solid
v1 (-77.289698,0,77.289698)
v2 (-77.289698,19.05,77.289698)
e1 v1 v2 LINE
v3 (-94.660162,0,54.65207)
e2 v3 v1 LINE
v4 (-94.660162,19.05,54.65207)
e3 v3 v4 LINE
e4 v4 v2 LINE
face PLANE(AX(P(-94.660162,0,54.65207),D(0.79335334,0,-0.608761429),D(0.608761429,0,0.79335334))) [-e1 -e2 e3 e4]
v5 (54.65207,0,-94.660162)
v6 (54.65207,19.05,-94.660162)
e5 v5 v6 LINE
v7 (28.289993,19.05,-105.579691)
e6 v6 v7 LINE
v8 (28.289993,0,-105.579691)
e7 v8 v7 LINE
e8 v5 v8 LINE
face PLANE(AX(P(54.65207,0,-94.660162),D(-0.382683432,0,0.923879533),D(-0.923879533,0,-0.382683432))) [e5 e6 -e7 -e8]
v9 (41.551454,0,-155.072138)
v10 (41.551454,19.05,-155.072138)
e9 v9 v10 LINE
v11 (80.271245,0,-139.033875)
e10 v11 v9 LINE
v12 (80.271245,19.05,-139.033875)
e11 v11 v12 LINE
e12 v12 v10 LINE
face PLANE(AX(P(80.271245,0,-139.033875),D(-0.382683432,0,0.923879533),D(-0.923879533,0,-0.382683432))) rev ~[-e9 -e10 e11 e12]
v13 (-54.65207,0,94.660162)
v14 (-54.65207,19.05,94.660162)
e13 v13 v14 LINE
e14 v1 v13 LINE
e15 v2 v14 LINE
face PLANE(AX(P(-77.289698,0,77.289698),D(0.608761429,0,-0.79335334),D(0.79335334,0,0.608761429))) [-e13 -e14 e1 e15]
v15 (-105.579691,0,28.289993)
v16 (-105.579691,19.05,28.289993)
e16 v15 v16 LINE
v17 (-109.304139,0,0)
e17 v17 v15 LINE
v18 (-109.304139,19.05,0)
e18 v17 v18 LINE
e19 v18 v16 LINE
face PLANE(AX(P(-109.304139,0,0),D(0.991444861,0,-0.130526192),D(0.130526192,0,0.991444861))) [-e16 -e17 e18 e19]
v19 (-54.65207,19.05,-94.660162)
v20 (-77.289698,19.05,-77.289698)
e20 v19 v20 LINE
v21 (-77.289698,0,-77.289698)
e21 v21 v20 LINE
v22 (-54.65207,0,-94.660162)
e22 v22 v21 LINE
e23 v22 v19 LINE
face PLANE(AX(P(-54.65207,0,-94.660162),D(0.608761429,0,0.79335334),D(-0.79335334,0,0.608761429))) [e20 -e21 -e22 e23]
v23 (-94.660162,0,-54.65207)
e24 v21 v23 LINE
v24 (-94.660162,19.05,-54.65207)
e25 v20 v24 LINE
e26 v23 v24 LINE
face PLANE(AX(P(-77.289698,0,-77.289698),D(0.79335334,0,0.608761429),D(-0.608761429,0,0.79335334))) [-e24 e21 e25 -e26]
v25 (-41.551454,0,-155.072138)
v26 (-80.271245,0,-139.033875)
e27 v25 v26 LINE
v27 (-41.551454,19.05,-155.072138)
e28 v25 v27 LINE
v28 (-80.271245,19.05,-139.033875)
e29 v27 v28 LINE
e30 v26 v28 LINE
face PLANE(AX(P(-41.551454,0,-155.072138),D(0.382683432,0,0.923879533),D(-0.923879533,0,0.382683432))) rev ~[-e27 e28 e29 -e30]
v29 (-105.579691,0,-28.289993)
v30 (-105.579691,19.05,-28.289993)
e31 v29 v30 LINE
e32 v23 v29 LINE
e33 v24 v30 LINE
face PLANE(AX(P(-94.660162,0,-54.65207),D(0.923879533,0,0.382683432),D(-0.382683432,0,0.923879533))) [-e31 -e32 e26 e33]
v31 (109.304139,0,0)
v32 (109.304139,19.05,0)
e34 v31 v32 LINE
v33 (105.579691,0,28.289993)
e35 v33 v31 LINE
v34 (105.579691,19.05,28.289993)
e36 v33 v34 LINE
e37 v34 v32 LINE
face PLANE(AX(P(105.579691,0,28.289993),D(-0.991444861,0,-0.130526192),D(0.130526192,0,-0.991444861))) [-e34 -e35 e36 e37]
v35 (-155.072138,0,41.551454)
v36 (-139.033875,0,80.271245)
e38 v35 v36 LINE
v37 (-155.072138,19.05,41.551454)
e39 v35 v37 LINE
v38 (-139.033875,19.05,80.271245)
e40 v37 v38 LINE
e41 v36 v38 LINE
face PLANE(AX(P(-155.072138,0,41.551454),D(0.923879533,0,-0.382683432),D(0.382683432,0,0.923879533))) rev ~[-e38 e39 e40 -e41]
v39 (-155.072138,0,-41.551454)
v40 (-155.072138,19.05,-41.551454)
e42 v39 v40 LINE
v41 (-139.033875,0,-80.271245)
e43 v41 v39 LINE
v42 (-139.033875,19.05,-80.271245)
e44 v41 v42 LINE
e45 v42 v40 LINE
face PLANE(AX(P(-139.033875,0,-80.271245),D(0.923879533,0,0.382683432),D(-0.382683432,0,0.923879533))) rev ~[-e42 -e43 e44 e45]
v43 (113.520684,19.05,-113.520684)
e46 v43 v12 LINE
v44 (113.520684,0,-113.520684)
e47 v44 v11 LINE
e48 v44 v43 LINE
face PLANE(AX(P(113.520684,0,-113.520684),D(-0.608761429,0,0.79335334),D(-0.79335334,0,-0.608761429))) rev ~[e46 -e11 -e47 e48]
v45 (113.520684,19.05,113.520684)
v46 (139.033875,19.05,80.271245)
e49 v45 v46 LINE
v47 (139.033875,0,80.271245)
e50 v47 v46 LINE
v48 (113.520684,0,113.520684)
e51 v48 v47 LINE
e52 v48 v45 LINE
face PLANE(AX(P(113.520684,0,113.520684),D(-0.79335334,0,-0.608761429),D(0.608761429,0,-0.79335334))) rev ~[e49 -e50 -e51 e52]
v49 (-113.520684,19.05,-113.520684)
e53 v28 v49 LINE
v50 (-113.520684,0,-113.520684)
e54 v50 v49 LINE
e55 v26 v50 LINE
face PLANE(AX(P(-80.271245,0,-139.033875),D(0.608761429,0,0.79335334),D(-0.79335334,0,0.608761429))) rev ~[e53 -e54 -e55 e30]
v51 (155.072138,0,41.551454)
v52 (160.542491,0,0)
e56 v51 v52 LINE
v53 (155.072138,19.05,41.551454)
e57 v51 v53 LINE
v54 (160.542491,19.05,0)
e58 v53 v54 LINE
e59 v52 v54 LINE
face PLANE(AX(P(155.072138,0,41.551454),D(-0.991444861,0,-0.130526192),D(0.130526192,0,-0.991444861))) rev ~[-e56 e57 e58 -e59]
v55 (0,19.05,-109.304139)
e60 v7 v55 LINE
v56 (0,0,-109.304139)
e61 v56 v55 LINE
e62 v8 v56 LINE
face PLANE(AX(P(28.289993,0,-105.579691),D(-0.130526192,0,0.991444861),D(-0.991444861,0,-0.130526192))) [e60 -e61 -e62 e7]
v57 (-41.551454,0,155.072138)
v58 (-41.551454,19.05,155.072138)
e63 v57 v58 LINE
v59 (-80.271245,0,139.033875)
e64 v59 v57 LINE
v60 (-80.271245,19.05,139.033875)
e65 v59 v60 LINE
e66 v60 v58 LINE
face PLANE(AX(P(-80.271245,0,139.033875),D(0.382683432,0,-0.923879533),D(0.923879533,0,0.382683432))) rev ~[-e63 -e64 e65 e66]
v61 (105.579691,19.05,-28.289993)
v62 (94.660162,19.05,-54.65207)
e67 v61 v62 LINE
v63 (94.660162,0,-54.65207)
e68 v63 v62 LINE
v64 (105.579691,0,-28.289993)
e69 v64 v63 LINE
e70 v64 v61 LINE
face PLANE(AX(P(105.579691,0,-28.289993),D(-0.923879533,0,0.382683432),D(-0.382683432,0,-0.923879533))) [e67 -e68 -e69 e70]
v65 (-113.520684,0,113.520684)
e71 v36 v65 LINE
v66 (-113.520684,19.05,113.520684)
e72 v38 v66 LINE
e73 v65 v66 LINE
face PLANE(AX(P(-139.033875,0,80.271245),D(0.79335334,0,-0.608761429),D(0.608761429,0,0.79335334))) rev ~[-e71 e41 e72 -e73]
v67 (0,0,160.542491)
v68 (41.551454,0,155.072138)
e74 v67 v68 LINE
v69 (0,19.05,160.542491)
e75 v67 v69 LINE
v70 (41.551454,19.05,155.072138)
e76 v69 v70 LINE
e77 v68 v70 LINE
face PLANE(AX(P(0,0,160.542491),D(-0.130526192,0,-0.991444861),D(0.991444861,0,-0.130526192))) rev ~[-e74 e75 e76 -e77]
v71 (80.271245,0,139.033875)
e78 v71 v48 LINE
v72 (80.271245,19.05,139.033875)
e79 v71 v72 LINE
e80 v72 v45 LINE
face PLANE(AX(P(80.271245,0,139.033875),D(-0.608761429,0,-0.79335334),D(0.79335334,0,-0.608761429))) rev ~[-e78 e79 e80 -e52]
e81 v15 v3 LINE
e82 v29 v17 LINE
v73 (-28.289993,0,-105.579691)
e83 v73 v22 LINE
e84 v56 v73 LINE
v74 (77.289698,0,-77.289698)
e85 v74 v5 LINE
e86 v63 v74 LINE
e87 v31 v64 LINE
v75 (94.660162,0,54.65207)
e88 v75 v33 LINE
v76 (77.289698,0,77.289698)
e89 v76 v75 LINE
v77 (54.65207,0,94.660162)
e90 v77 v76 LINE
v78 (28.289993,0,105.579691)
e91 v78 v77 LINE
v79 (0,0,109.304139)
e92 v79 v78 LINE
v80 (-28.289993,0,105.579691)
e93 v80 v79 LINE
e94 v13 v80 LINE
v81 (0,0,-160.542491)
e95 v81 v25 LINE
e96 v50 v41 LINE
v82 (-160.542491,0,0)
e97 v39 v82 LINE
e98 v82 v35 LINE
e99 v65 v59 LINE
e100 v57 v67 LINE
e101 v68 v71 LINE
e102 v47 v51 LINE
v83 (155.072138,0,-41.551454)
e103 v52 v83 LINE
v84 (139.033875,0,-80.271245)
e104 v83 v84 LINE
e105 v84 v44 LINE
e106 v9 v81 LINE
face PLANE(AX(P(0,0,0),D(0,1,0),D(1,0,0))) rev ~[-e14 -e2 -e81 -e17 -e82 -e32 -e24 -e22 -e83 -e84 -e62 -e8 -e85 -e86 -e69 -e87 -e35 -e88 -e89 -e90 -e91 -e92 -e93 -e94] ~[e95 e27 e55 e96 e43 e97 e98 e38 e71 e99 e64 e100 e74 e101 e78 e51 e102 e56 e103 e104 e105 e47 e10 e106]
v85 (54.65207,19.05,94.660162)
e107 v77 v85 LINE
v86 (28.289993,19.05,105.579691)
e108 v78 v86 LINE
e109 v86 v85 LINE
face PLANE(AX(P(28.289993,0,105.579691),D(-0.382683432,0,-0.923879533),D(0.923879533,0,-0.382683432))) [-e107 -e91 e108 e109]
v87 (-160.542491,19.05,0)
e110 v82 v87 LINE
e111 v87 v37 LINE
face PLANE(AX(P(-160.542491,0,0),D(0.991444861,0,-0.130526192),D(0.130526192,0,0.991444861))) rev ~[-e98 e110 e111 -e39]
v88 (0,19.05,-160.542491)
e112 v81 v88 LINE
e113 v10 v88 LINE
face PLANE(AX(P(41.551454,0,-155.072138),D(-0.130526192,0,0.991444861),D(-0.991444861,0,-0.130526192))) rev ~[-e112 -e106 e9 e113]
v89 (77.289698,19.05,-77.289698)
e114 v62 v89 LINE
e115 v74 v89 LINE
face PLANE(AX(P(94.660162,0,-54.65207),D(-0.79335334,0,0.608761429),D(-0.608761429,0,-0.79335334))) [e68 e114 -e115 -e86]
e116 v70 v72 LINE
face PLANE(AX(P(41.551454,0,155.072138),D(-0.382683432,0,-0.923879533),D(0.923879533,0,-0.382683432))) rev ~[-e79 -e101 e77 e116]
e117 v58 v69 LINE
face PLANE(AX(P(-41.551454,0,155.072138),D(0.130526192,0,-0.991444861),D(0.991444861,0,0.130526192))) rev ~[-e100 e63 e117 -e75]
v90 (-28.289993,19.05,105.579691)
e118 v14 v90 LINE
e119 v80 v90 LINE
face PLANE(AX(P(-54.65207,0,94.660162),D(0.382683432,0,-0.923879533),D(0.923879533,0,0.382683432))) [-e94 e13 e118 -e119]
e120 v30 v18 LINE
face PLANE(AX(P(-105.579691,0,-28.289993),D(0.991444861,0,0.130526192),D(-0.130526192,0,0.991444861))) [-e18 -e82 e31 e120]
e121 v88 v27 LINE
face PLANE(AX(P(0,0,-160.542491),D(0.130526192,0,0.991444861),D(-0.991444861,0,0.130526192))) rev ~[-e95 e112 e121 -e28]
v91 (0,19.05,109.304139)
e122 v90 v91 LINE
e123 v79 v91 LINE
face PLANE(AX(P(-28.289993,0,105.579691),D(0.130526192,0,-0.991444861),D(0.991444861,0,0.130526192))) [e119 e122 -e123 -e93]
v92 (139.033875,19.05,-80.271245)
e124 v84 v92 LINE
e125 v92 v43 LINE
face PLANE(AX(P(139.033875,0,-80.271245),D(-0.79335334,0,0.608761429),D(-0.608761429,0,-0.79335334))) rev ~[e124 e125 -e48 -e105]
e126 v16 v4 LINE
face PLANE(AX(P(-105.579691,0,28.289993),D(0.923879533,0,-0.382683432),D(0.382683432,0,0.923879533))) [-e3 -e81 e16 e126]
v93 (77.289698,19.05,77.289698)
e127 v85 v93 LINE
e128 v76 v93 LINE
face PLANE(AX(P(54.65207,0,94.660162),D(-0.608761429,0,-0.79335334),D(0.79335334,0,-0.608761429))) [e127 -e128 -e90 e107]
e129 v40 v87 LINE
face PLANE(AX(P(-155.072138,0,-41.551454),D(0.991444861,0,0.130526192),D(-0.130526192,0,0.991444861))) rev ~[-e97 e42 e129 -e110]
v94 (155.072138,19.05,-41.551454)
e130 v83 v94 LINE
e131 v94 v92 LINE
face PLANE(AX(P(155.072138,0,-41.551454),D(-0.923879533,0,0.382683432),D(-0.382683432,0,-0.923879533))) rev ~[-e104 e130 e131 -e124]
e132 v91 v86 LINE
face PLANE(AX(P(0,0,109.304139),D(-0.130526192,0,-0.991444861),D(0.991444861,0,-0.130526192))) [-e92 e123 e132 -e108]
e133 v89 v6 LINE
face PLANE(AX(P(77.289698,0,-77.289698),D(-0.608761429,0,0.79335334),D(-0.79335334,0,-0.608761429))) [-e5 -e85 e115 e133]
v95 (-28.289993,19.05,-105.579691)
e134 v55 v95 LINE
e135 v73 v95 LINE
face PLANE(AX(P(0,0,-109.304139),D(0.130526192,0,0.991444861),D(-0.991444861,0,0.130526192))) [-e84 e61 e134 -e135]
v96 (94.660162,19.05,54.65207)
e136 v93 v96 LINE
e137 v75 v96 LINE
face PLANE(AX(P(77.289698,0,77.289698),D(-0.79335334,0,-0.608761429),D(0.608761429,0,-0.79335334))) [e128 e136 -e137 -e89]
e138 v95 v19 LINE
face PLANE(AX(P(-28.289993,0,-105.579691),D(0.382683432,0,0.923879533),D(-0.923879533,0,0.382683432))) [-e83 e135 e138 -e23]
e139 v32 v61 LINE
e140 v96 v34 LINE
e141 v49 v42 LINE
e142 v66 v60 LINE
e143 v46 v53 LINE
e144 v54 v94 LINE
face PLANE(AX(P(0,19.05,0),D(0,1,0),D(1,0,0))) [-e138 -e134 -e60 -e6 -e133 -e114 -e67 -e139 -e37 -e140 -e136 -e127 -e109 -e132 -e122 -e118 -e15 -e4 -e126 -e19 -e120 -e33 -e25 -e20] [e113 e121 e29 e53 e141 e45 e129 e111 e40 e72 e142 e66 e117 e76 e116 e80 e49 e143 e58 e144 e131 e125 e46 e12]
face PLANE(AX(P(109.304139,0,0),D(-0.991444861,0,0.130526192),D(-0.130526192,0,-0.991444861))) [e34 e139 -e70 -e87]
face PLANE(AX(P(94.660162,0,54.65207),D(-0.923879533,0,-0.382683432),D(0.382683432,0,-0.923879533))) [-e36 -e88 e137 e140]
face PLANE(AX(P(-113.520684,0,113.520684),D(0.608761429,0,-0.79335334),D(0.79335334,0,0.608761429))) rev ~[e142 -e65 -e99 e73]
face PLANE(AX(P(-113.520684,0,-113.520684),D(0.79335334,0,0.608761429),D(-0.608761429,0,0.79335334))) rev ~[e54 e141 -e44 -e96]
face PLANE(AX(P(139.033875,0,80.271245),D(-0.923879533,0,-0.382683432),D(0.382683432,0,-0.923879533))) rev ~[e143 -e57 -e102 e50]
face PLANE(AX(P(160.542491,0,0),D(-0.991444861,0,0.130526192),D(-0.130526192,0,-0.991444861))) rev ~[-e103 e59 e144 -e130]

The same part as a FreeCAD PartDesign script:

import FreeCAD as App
import Part
import Sketcher

V = App.Vector
Q = App.Units.Quantity

doc = App.newDocument("Part")
params = doc.addObject("Spreadsheet::Sheet", "Params")
for row, (alias, value) in enumerate([
    ("sketch1_length", "1.65 in"),
    ("pad1_length", "0.75 in"),
], start=1):
    params.set(f"A{row}", alias)
    params.set(f"B{row}", "=" + value)
    params.setAlias(f"B{row}", alias)

body = doc.addObject("PartDesign::Body", "Body")

sketch1 = body.newObject("Sketcher::SketchObject", "Sketch")
sketch1.AttachmentSupport = (doc.getObject("XZ_Plane"), [""])
sketch1.MapMode = "FlatFace"
sketch1.addGeometry([
    Part.LineSegment(V(-160.542491, 0, 0), V(-155.072138, 41.551454, 0)),
    Part.LineSegment(V(-155.072138, 41.551454, 0), V(-139.033875, 80.271245, 0)),
    Part.LineSegment(V(-139.033875, 80.271245, 0), V(-113.520684, 113.520684, 0)),
    Part.LineSegment(V(-113.520684, 113.520684, 0), V(-80.271245, 139.033875, 0)),
    Part.LineSegment(V(-80.271245, 139.033875, 0), V(-41.551454, 155.072138, 0)),
    Part.LineSegment(V(-41.551454, 155.072138, 0), V(0, 160.542491, 0)),
    Part.LineSegment(V(0, 160.542491, 0), V(41.551454, 155.072138, 0)),
    Part.LineSegment(V(41.551454, 155.072138, 0), V(80.271245, 139.033875, 0)),
    Part.LineSegment(V(80.271245, 139.033875, 0), V(113.520684, 113.520684, 0)),
    Part.LineSegment(V(113.520684, 113.520684, 0), V(139.033875, 80.271245, 0)),
    Part.LineSegment(V(139.033875, 80.271245, 0), V(155.072138, 41.551454, 0)),
    Part.LineSegment(V(155.072138, 41.551454, 0), V(160.542491, 0, 0)),
    Part.LineSegment(V(160.542491, 0, 0), V(155.072138, -41.551454, 0)),
    Part.LineSegment(V(155.072138, -41.551454, 0), V(139.033875, -80.271245, 0)),
    Part.LineSegment(V(139.033875, -80.271245, 0), V(113.520684, -113.520684, 0)),
    Part.LineSegment(V(113.520684, -113.520684, 0), V(80.271245, -139.033875, 0)),
    Part.LineSegment(V(80.271245, -139.033875, 0), V(41.551454, -155.072138, 0)),
    Part.LineSegment(V(41.551454, -155.072138, 0), V(0, -160.542491, 0)),
    Part.LineSegment(V(0, -160.542491, 0), V(-41.551454, -155.072138, 0)),
    Part.LineSegment(V(-41.551454, -155.072138, 0), V(-80.271245, -139.033875, 0)),
    Part.LineSegment(V(-80.271245, -139.033875, 0), V(-113.520684, -113.520684, 0)),
    Part.LineSegment(V(-113.520684, -113.520684, 0), V(-139.033875, -80.271245, 0)),
    Part.LineSegment(V(-139.033875, -80.271245, 0), V(-155.072138, -41.551454, 0)),
    Part.LineSegment(V(-155.072138, -41.551454, 0), V(-160.542491, 0, 0)),
    Part.LineSegment(V(-105.579691, 28.289993, 0), V(-109.304139, 0, 0)),
    Part.LineSegment(V(-109.304139, 0, 0), V(-105.579691, -28.289993, 0)),
    Part.LineSegment(V(-105.579691, -28.289993, 0), V(-94.660162, -54.65207, 0)),
    Part.LineSegment(V(-94.660162, -54.65207, 0), V(-77.289698, -77.289698, 0)),
    Part.LineSegment(V(-77.289698, -77.289698, 0), V(-54.65207, -94.660162, 0)),
    Part.LineSegment(V(-54.65207, -94.660162, 0), V(-28.289993, -105.579691, 0)),
    Part.LineSegment(V(-28.289993, -105.579691, 0), V(0, -109.304139, 0)),
    Part.LineSegment(V(0, -109.304139, 0), V(28.289993, -105.579691, 0)),
    Part.LineSegment(V(28.289993, -105.579691, 0), V(54.65207, -94.660162, 0)),
    Part.LineSegment(V(54.65207, -94.660162, 0), V(77.289698, -77.289698, 0)),
    Part.LineSegment(V(77.289698, -77.289698, 0), V(94.660162, -54.65207, 0)),
    Part.LineSegment(V(94.660162, -54.65207, 0), V(105.579691, -28.289993, 0)),
    Part.LineSegment(V(105.579691, -28.289993, 0), V(109.304139, 0, 0)),
    Part.LineSegment(V(109.304139, 0, 0), V(105.579691, 28.289993, 0)),
    Part.LineSegment(V(105.579691, 28.289993, 0), V(94.660162, 54.65207, 0)),
    Part.LineSegment(V(94.660162, 54.65207, 0), V(77.289698, 77.289698, 0)),
    Part.LineSegment(V(77.289698, 77.289698, 0), V(54.65207, 94.660162, 0)),
    Part.LineSegment(V(54.65207, 94.660162, 0), V(28.289993, 105.579691, 0)),
    Part.LineSegment(V(28.289993, 105.579691, 0), V(0, 109.304139, 0)),
    Part.LineSegment(V(0, 109.304139, 0), V(-28.289993, 105.579691, 0)),
    Part.LineSegment(V(-28.289993, 105.579691, 0), V(-54.65207, 94.660162, 0)),
    Part.LineSegment(V(-54.65207, 94.660162, 0), V(-77.289698, 77.289698, 0)),
    Part.LineSegment(V(-77.289698, 77.289698, 0), V(-94.660162, 54.65207, 0)),
    Part.LineSegment(V(-94.660162, 54.65207, 0), V(-105.579691, 28.289993, 0)),
], False)
sketch1.addConstraint([
    Sketcher.Constraint("Coincident", 0, 2, 1, 1),
    Sketcher.Constraint("Coincident", 1, 2, 2, 1),
    Sketcher.Constraint("Coincident", 2, 2, 3, 1),
    Sketcher.Constraint("Coincident", 3, 2, 4, 1),
    Sketcher.Constraint("Coincident", 4, 2, 5, 1),
    Sketcher.Constraint("Coincident", 5, 2, 6, 1),
    Sketcher.Constraint("Coincident", 6, 2, 7, 1),
    Sketcher.Constraint("Coincident", 7, 2, 8, 1),
    Sketcher.Constraint("Coincident", 8, 2, 9, 1),
    Sketcher.Constraint("Coincident", 9, 2, 10, 1),
    Sketcher.Constraint("Coincident", 10, 2, 11, 1),
    Sketcher.Constraint("Coincident", 11, 2, 12, 1),
    Sketcher.Constraint("Coincident", 12, 2, 13, 1),
    Sketcher.Constraint("Coincident", 13, 2, 14, 1),
    Sketcher.Constraint("Coincident", 14, 2, 15, 1),
    Sketcher.Constraint("Coincident", 15, 2, 16, 1),
    Sketcher.Constraint("Coincident", 16, 2, 17, 1),
    Sketcher.Constraint("Coincident", 17, 2, 18, 1),
    Sketcher.Constraint("Coincident", 18, 2, 19, 1),
    Sketcher.Constraint("Coincident", 19, 2, 20, 1),
    Sketcher.Constraint("Coincident", 20, 2, 21, 1),
    Sketcher.Constraint("Coincident", 21, 2, 22, 1),
    Sketcher.Constraint("Coincident", 22, 2, 23, 1),
    Sketcher.Constraint("Coincident", 23, 2, 0, 1),
    Sketcher.Constraint("Coincident", 24, 2, 25, 1),
    Sketcher.Constraint("Coincident", 25, 2, 26, 1),
    Sketcher.Constraint("Coincident", 26, 2, 27, 1),
    Sketcher.Constraint("Coincident", 27, 2, 28, 1),
    Sketcher.Constraint("Coincident", 28, 2, 29, 1),
    Sketcher.Constraint("Coincident", 29, 2, 30, 1),
    Sketcher.Constraint("Coincident", 30, 2, 31, 1),
    Sketcher.Constraint("Coincident", 31, 2, 32, 1),
    Sketcher.Constraint("Coincident", 32, 2, 33, 1),
    Sketcher.Constraint("Coincident", 33, 2, 34, 1),
    Sketcher.Constraint("Coincident", 34, 2, 35, 1),
    Sketcher.Constraint("Coincident", 35, 2, 36, 1),
    Sketcher.Constraint("Coincident", 36, 2, 37, 1),
    Sketcher.Constraint("Coincident", 37, 2, 38, 1),
    Sketcher.Constraint("Coincident", 38, 2, 39, 1),
    Sketcher.Constraint("Coincident", 39, 2, 40, 1),
    Sketcher.Constraint("Coincident", 40, 2, 41, 1),
    Sketcher.Constraint("Coincident", 41, 2, 42, 1),
    Sketcher.Constraint("Coincident", 42, 2, 43, 1),
    Sketcher.Constraint("Coincident", 43, 2, 44, 1),
    Sketcher.Constraint("Coincident", 44, 2, 45, 1),
    Sketcher.Constraint("Coincident", 45, 2, 46, 1),
    Sketcher.Constraint("Coincident", 46, 2, 47, 1),
    Sketcher.Constraint("Coincident", 47, 2, 24, 1),
    Sketcher.Constraint("Symmetric", 0, 2, 12, 2, -1, 1),
    Sketcher.Constraint("Symmetric", 1, 2, 13, 2, -1, 1),
    Sketcher.Constraint("Symmetric", 2, 2, 14, 2, -1, 1),
    Sketcher.Constraint("Symmetric", 3, 2, 15, 2, -1, 1),
    Sketcher.Constraint("Symmetric", 4, 2, 16, 2, -1, 1),
    Sketcher.Constraint("Symmetric", 5, 2, 17, 2, -1, 1),
    Sketcher.Constraint("Symmetric", 6, 2, 18, 2, -1, 1),
    Sketcher.Constraint("Symmetric", 7, 2, 19, 2, -1, 1),
    Sketcher.Constraint("Symmetric", 8, 2, 20, 2, -1, 1),
    Sketcher.Constraint("Symmetric", 9, 2, 21, 2, -1, 1),
    Sketcher.Constraint("Symmetric", 10, 2, 22, 2, -1, 1),
    Sketcher.Constraint("Symmetric", 11, 2, 23, 2, -1, 1),
    Sketcher.Constraint("Symmetric", 24, 2, 36, 2, -1, 1),
    Sketcher.Constraint("Symmetric", 25, 2, 37, 2, -1, 1),
    Sketcher.Constraint("Symmetric", 26, 2, 38, 2, -1, 1),
    Sketcher.Constraint("Symmetric", 27, 2, 39, 2, -1, 1),
    Sketcher.Constraint("Symmetric", 28, 2, 40, 2, -1, 1),
    Sketcher.Constraint("Symmetric", 29, 2, 41, 2, -1, 1),
    Sketcher.Constraint("Symmetric", 30, 2, 42, 2, -1, 1),
    Sketcher.Constraint("Symmetric", 31, 2, 43, 2, -1, 1),
    Sketcher.Constraint("Symmetric", 32, 2, 44, 2, -1, 1),
    Sketcher.Constraint("Symmetric", 33, 2, 45, 2, -1, 1),
    Sketcher.Constraint("Symmetric", 34, 2, 46, 2, -1, 1),
    Sketcher.Constraint("Symmetric", 35, 2, 47, 2, -1, 1),
    Sketcher.Constraint("Symmetric", 4, 2, 6, 2, -2),
    Sketcher.Constraint("Symmetric", 3, 2, 7, 2, -2),
    Sketcher.Constraint("Symmetric", 2, 2, 8, 2, -2),
    Sketcher.Constraint("Symmetric", 1, 2, 9, 2, -2),
    Sketcher.Constraint("Symmetric", 0, 2, 10, 2, -2),
    Sketcher.Constraint("Symmetric", 29, 2, 31, 2, -2),
    Sketcher.Constraint("Symmetric", 28, 2, 32, 2, -2),
    Sketcher.Constraint("Symmetric", 27, 2, 33, 2, -2),
    Sketcher.Constraint("Symmetric", 26, 2, 34, 2, -2),
    Sketcher.Constraint("Symmetric", 25, 2, 35, 2, -2),
    Sketcher.Constraint("PointOnObject", 5, 2, -2),
    Sketcher.Constraint("PointOnObject", 11, 2, -1),
    Sketcher.Constraint("PointOnObject", 24, 2, -1),
    Sketcher.Constraint("PointOnObject", 30, 2, -2),
    Sketcher.Constraint("Perpendicular", 0, 6),
    Sketcher.Constraint("Perpendicular", 1, 7),
    Sketcher.Constraint("Perpendicular", 2, 8),
    Sketcher.Constraint("Perpendicular", 18, 24),
    Sketcher.Constraint("Parallel", 22, 26),
    Sketcher.Constraint("Parallel", 21, 27),
    Sketcher.Constraint("Parallel", 20, 28),
    Sketcher.Constraint("Parallel", 19, 29),
    Sketcher.Constraint("Perpendicular", 24, 30),
    Sketcher.Constraint("Equal", 0, 1),
    Sketcher.Constraint("Equal", 1, 2),
    Sketcher.Constraint("Equal", 2, 3),
    Sketcher.Constraint("Equal", 3, 4),
    Sketcher.Constraint("Equal", 4, 5),
    Sketcher.Constraint("Equal", 25, 26),
    Sketcher.Constraint("Equal", 26, 27),
    Sketcher.Constraint("Equal", 27, 28),
    Sketcher.Constraint("Equal", 28, 29),
    Sketcher.Constraint("Equal", 29, 30),
    Sketcher.Constraint("Angle", 0, Q("82.5 deg")),
    Sketcher.Constraint("Angle", 1, Q("67.5 deg")),
    Sketcher.Constraint("Angle", 2, Q("52.5 deg")),
    Sketcher.Constraint("Distance", 0, Q("1.65 in")),
    Sketcher.Constraint("DistanceX", 27, 2, -1, 1, 77.289698),
])
sketch1.setExpression("Constraints[108]", "Params.sketch1_length")
pad1 = body.newObject("PartDesign::Pad", "Pad")
pad1.Profile = sketch1
pad1.setExpression("Length", "Params.pad1_length")
pad1.Reversed = True

doc.recompute()
